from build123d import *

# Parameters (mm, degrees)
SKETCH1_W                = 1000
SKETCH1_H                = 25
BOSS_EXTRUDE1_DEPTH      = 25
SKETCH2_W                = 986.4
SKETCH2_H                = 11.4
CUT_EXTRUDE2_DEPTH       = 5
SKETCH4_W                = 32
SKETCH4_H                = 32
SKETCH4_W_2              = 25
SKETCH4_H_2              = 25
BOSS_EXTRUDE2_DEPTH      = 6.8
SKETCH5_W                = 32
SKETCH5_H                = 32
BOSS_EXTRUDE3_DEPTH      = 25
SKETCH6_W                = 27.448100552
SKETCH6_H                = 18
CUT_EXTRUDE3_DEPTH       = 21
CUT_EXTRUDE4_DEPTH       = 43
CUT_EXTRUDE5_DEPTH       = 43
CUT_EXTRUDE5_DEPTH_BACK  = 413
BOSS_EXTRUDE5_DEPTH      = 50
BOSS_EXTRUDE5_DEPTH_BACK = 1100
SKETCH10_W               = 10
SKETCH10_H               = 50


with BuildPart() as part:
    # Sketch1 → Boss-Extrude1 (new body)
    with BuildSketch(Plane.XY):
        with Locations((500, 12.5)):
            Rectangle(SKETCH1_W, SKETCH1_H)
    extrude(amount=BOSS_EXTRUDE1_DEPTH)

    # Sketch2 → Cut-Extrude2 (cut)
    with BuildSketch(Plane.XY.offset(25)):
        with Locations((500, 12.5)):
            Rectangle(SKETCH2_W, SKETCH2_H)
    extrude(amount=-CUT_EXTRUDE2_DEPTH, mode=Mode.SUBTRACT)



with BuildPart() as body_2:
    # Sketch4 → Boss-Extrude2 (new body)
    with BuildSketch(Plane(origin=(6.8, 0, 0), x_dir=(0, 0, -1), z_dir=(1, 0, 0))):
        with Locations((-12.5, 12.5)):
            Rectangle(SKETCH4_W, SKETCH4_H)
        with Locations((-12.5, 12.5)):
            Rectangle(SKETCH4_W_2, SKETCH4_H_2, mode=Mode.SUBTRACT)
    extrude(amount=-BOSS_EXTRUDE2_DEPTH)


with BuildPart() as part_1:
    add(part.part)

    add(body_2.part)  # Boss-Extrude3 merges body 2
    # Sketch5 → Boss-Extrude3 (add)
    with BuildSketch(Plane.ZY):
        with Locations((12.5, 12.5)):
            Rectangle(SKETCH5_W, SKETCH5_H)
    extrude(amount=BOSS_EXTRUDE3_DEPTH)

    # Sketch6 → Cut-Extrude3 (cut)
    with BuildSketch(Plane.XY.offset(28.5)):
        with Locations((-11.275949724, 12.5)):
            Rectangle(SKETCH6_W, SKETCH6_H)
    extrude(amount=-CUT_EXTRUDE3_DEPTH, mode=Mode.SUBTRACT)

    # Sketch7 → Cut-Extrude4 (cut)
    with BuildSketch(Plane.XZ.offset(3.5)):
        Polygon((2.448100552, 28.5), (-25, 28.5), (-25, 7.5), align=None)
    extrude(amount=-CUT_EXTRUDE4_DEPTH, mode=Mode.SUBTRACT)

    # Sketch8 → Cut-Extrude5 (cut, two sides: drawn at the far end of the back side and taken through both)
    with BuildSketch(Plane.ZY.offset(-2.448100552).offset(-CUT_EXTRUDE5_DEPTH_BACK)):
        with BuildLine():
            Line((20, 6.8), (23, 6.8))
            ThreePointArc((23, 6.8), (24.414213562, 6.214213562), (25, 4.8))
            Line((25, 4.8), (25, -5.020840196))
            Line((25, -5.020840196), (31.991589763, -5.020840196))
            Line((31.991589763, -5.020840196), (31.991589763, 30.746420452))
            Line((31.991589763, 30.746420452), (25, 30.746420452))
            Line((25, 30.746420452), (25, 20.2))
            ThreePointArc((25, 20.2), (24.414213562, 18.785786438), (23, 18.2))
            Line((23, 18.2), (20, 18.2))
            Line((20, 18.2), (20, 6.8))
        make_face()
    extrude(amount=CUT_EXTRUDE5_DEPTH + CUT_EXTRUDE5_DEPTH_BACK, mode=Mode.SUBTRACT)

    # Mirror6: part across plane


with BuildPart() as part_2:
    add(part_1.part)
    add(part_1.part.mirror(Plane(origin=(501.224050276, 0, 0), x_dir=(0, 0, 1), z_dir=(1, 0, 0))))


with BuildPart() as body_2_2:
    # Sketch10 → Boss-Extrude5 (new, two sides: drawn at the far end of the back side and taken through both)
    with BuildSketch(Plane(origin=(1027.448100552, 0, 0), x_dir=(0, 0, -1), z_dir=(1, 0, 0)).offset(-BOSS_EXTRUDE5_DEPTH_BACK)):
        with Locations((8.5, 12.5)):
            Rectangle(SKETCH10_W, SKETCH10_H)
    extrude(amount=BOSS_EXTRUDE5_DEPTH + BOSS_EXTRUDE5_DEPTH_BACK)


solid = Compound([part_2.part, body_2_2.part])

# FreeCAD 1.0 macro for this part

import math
import FreeCAD as App
import Part
import Sketcher
Q = App.Units.Quantity

doc = App.newDocument("Part")
body = doc.addObject("PartDesign::Body", "Body")

# Sketch on XY plane
sketch1 = body.newObject("Sketcher::SketchObject", "Sketch")
sketch1.AttachmentSupport = (doc.getObject("XY_Plane"), [""])
sketch1.MapMode = "FlatFace"
sketch1.addGeometry([
    Part.LineSegment(App.Vector(0, 25, 0), App.Vector(0, 0, 0)),
    Part.LineSegment(App.Vector(0, 0, 0), App.Vector(1000, 0, 0)),
    Part.LineSegment(App.Vector(1000, 0, 0), App.Vector(1000, 25, 0)),
    Part.LineSegment(App.Vector(1000, 25, 0), App.Vector(0, 25, 0)),
], False)
sketch1.addConstraint([
    Sketcher.Constraint("Coincident", 0, 2, 1, 1),
    Sketcher.Constraint("Coincident", 1, 2, 2, 1),
    Sketcher.Constraint("Coincident", 2, 2, 3, 1),
    Sketcher.Constraint("Coincident", 3, 2, 0, 1),
    Sketcher.Constraint("Vertical", 0),
    Sketcher.Constraint("Horizontal", 1),
    Sketcher.Constraint("Vertical", 2),
    Sketcher.Constraint("Horizontal", 3),
    Sketcher.Constraint("Coincident", 0, 2, -1, 1),
    Sketcher.Constraint("DistanceX", 1, 1, 1, 2, Q("1000 mm")),
    Sketcher.Constraint("DistanceY", 0, 2, 0, 1, Q("25 mm")),
])
pad1 = body.newObject("PartDesign::Pad", "Pad")
pad1.Profile = sketch1
pad1.Length = 25

# Sketch on XY plane
sketch2 = body.newObject("Sketcher::SketchObject", "Sketch001")
sketch2.AttachmentSupport = (doc.getObject("XY_Plane"), [""])
sketch2.MapMode = "FlatFace"
sketch2.AttachmentOffset = App.Placement(App.Vector(0, 0, 25), App.Rotation())
sketch2.addGeometry([
    Part.LineSegment(App.Vector(6.8, 18.2, 0), App.Vector(6.8, 6.8, 0)),
    Part.LineSegment(App.Vector(6.8, 6.8, 0), App.Vector(993.2, 6.8, 0)),
    Part.LineSegment(App.Vector(993.2, 6.8, 0), App.Vector(993.2, 18.2, 0)),
    Part.LineSegment(App.Vector(993.2, 18.2, 0), App.Vector(6.8, 18.2, 0)),
], False)
sketch2.addConstraint([
    Sketcher.Constraint("Coincident", 0, 2, 1, 1),
    Sketcher.Constraint("Coincident", 1, 2, 2, 1),
    Sketcher.Constraint("Coincident", 2, 2, 3, 1),
    Sketcher.Constraint("Coincident", 3, 2, 0, 1),
    Sketcher.Constraint("Vertical", 0),
    Sketcher.Constraint("Horizontal", 1),
    Sketcher.Constraint("Vertical", 2),
    Sketcher.Constraint("Horizontal", 3),
    Sketcher.Constraint("DistanceX", 1, 1, 1, 2, Q("986.4 mm")),
    Sketcher.Constraint("DistanceY", 0, 2, 0, 1, Q("11.4 mm")),
    Sketcher.Constraint("DistanceX", -1, 1, 0, 2, Q("6.8 mm")),
    Sketcher.Constraint("DistanceY", -1, 1, 0, 2, Q("6.8 mm")),
])
pocket1 = body.newObject("PartDesign::Pocket", "Pocket")
pocket1.Profile = sketch2
pocket1.Length = 5
body2 = doc.addObject("PartDesign::Body", "Body001")

# Sketch on YZ plane
sketch3 = body2.newObject("Sketcher::SketchObject", "Sketch002")
sketch3.AttachmentSupport = (doc.getObject("YZ_Plane001"), [""])
sketch3.MapMode = "FlatFace"
sketch3.AttachmentOffset = App.Placement(App.Vector(0, 0, 6.8), App.Rotation())
sketch3.addGeometry([
    Part.LineSegment(App.Vector(28.5, 28.5, 0), App.Vector(-3.5, 28.5, 0)),  # 0
    Part.LineSegment(App.Vector(-3.5, 28.5, 0), App.Vector(-3.5, -3.5, 0)),  # 1
    Part.LineSegment(App.Vector(-3.5, -3.5, 0), App.Vector(28.5, -3.5, 0)),  # 2
    Part.LineSegment(App.Vector(28.5, -3.5, 0), App.Vector(28.5, 28.5, 0)),  # 3
    Part.LineSegment(App.Vector(0, 0, 0), App.Vector(0, 25, 0)),  # 4
    Part.LineSegment(App.Vector(0, 25, 0), App.Vector(25, 25, 0)),  # 5
    Part.LineSegment(App.Vector(25, 25, 0), App.Vector(25, 0, 0)),  # 6
    Part.LineSegment(App.Vector(25, 0, 0), App.Vector(0, 0, 0)),  # 7
], False)
sketch3.addConstraint([
    Sketcher.Constraint("Coincident", 0, 2, 1, 1),
    Sketcher.Constraint("Coincident", 1, 2, 2, 1),
    Sketcher.Constraint("Coincident", 2, 2, 3, 1),
    Sketcher.Constraint("Coincident", 3, 2, 0, 1),
    Sketcher.Constraint("Coincident", 4, 2, 5, 1),
    Sketcher.Constraint("Coincident", 5, 2, 6, 1),
    Sketcher.Constraint("Coincident", 6, 2, 7, 1),
    Sketcher.Constraint("Coincident", 7, 2, 4, 1),
    Sketcher.Constraint("Horizontal", 0),
    Sketcher.Constraint("Vertical", 1),
    Sketcher.Constraint("Horizontal", 2),
    Sketcher.Constraint("Vertical", 3),
    Sketcher.Constraint("Vertical", 4),
    Sketcher.Constraint("Horizontal", 5),
    Sketcher.Constraint("Vertical", 6),
    Sketcher.Constraint("Horizontal", 7),
    Sketcher.Constraint("Coincident", 7, 2, -1, 1),
    Sketcher.Constraint("Equal", 2, 1),
    Sketcher.Constraint("Equal", 7, 4),
    Sketcher.Constraint("DistanceX", 0, 2, 0, 1, Q("32 mm")),
    Sketcher.Constraint("DistanceX", 5, 1, 5, 2, Q("25 mm")),
    Sketcher.Constraint("DistanceX", 0, 2, -1, 1, Q("3.5 mm")),
    Sketcher.Constraint("DistanceY", -1, 1, 0, 2, Q("28.5 mm")),
])
pad2 = body2.newObject("PartDesign::Pad", "Pad001")
pad2.Profile = sketch3
pad2.Length = 6.8
pad2.Reversed = True
doc.recompute()

boolean = body.newObject("PartDesign::Boolean", "Boolean")
boolean.Type = "Fuse"
boolean.addObjects([body2])

# Sketch on YZ plane
sketch4 = body.newObject("Sketcher::SketchObject", "Sketch003")
sketch4.AttachmentSupport = (doc.getObject("YZ_Plane"), [""])
sketch4.MapMode = "FlatFace"
sketch4.addGeometry([
    Part.LineSegment(App.Vector(28.5, -3.5, 0), App.Vector(-3.5, -3.5, 0)),
    Part.LineSegment(App.Vector(-3.5, -3.5, 0), App.Vector(-3.5, 28.5, 0)),
    Part.LineSegment(App.Vector(-3.5, 28.5, 0), App.Vector(28.5, 28.5, 0)),
    Part.LineSegment(App.Vector(28.5, 28.5, 0), App.Vector(28.5, -3.5, 0)),
], False)
sketch4.addConstraint([
    Sketcher.Constraint("Coincident", 0, 2, 1, 1),
    Sketcher.Constraint("Coincident", 1, 2, 2, 1),
    Sketcher.Constraint("Coincident", 2, 2, 3, 1),
    Sketcher.Constraint("Coincident", 3, 2, 0, 1),
    Sketcher.Constraint("Horizontal", 0),
    Sketcher.Constraint("Vertical", 1),
    Sketcher.Constraint("Horizontal", 2),
    Sketcher.Constraint("Vertical", 3),
    Sketcher.Constraint("Equal", 2, 1),
    Sketcher.Constraint("DistanceX", 0, 2, 0, 1, Q("32 mm")),
    Sketcher.Constraint("DistanceX", 0, 2, -1, 1, Q("3.5 mm")),
    Sketcher.Constraint("DistanceY", 0, 2, -1, 1, Q("3.5 mm")),
])
pad3 = body.newObject("PartDesign::Pad", "Pad002")
pad3.Profile = sketch4
pad3.Length = 25
pad3.Reversed = True

# Sketch on XY plane
sketch5 = body.newObject("Sketcher::SketchObject", "Sketch004")
sketch5.AttachmentSupport = (doc.getObject("XY_Plane"), [""])
sketch5.MapMode = "FlatFace"
sketch5.AttachmentOffset = App.Placement(App.Vector(0, 0, 28.5), App.Rotation())
sketch5.addGeometry([
    Part.LineSegment(App.Vector(-25, 21.5, 0), App.Vector(-25, 3.5, 0)),
    Part.LineSegment(App.Vector(-25, 3.5, 0), App.Vector(2.448101, 3.5, 0)),
    Part.LineSegment(App.Vector(2.448101, 3.5, 0), App.Vector(2.448101, 21.5, 0)),
    Part.LineSegment(App.Vector(2.448101, 21.5, 0), App.Vector(-25, 21.5, 0)),
], False)
sketch5.addConstraint([
    Sketcher.Constraint("Coincident", 0, 2, 1, 1),
    Sketcher.Constraint("Coincident", 1, 2, 2, 1),
    Sketcher.Constraint("Coincident", 2, 2, 3, 1),
    Sketcher.Constraint("Coincident", 3, 2, 0, 1),
    Sketcher.Constraint("Vertical", 0),
    Sketcher.Constraint("Horizontal", 1),
    Sketcher.Constraint("Vertical", 2),
    Sketcher.Constraint("Horizontal", 3),
    Sketcher.Constraint("DistanceY", 0, 2, 0, 1, Q("18 mm")),
    Sketcher.Constraint("DistanceX", 0, 2, -1, 1, Q("25 mm")),
    Sketcher.Constraint("DistanceY", -1, 1, 0, 2, Q("3.5 mm")),
    Sketcher.Constraint("DistanceX", 1, 1, 1, 2, Q("27.448101 mm")),
])
pocket2 = body.newObject("PartDesign::Pocket", "Pocket001")
pocket2.Profile = sketch5
pocket2.Length = 21

# Sketch on XZ plane
sketch6 = body.newObject("Sketcher::SketchObject", "Sketch005")
sketch6.AttachmentSupport = (doc.getObject("XZ_Plane"), [""])
sketch6.MapMode = "FlatFace"
sketch6.AttachmentOffset = App.Placement(App.Vector(0, 0, 3.5), App.Rotation())
sketch6.addGeometry([
    Part.LineSegment(App.Vector(2.448101, 28.5, 0), App.Vector(-25, 28.5, 0)),
    Part.LineSegment(App.Vector(-25, 28.5, 0), App.Vector(-25, 7.5, 0)),
    Part.LineSegment(App.Vector(-25, 7.5, 0), App.Vector(2.448101, 28.5, 0)),
], False)
sketch6.addConstraint([
    Sketcher.Constraint("Coincident", 0, 2, 1, 1),
    Sketcher.Constraint("Coincident", 1, 2, 2, 1),
    Sketcher.Constraint("Coincident", 2, 2, 0, 1),
    Sketcher.Constraint("Horizontal", 0),
    Sketcher.Constraint("Vertical", 1),
    Sketcher.Constraint("DistanceY", 1, 2, 1, 1, Q("21 mm")),
    Sketcher.Constraint("DistanceX", 0, 2, -1, 1, Q("25 mm")),
    Sketcher.Constraint("DistanceY", -1, 1, 0, 2, Q("28.5 mm")),
    Sketcher.Constraint("DistanceX", 0, 2, 0, 1, Q("27.448101 mm")),
])
pocket3 = body.newObject("PartDesign::Pocket", "Pocket002")
pocket3.Profile = sketch6
pocket3.Length = 43

# Sketch on YZ plane
sketch7 = body.newObject("Sketcher::SketchObject", "Sketch006")
sketch7.AttachmentSupport = (doc.getObject("YZ_Plane"), [""])
sketch7.MapMode = "FlatFace"
sketch7.AttachmentOffset = App.Placement(App.Vector(0, 0, 2.448101), App.Rotation())
sketch7.addGeometry([
    Part.LineSegment(App.Vector(6.8, 20, 0), App.Vector(6.8, 23, 0)),  # 0
    Part.ArcOfCircle(Part.Circle(App.Vector(4.8, 23, 0), App.Vector(0, 0, 1), 2), math.radians(0), math.radians(90)),  # 1
    Part.LineSegment(App.Vector(4.8, 25, 0), App.Vector(-5.02084, 25, 0)),  # 2
    Part.LineSegment(App.Vector(-5.02084, 25, 0), App.Vector(-5.02084, 31.99159, 0)),  # 3
    Part.LineSegment(App.Vector(-5.02084, 31.99159, 0), App.Vector(30.74642, 31.99159, 0)),  # 4
    Part.LineSegment(App.Vector(30.74642, 31.99159, 0), App.Vector(30.74642, 25, 0)),  # 5
    Part.LineSegment(App.Vector(30.74642, 25, 0), App.Vector(20.2, 25, 0)),  # 6
    Part.ArcOfCircle(Part.Circle(App.Vector(20.2, 23, 0), App.Vector(0, 0, 1), 2), math.radians(90), math.radians(180)),  # 7
    Part.LineSegment(App.Vector(18.2, 23, 0), App.Vector(18.2, 20, 0)),  # 8
    Part.LineSegment(App.Vector(18.2, 20, 0), App.Vector(6.8, 20, 0)),  # 9
], False)
sketch7.addConstraint([
    Sketcher.Constraint("Tangent", 0, 2, 1, 1),
    Sketcher.Constraint("Tangent", 1, 2, 2, 1),
    Sketcher.Constraint("Coincident", 2, 2, 3, 1),
    Sketcher.Constraint("Coincident", 3, 2, 4, 1),
    Sketcher.Constraint("Coincident", 4, 2, 5, 1),
    Sketcher.Constraint("Coincident", 5, 2, 6, 1),
    Sketcher.Constraint("Tangent", 6, 2, 7, 1),
    Sketcher.Constraint("Tangent", 7, 2, 8, 1),
    Sketcher.Constraint("Coincident", 8, 2, 9, 1),
    Sketcher.Constraint("Coincident", 9, 2, 0, 1),
    Sketcher.Constraint("Vertical", 0),
    Sketcher.Constraint("Horizontal", 2),
    Sketcher.Constraint("Vertical", 3),
    Sketcher.Constraint("Horizontal", 4),
    Sketcher.Constraint("Vertical", 5),
    Sketcher.Constraint("Horizontal", 6),
    Sketcher.Constraint("Vertical", 8),
    Sketcher.Constraint("Horizontal", 9),
    Sketcher.Constraint("Equal", 1, 7),
    Sketcher.Constraint("Horizontal", 1, 3, 7, 3),
    Sketcher.Constraint("Radius", 1, Q("2 mm")),
    Sketcher.Constraint("DistanceY", 0, 1, 0, 2, Q("3 mm")),
    Sketcher.Constraint("DistanceX", 9, 2, 9, 1, Q("11.4 mm")),
    Sketcher.Constraint("DistanceY", -1, 1, 1, 3, Q("23 mm")),
    Sketcher.Constraint("DistanceX", -1, 1, 1, 3, Q("4.8 mm")),
    Sketcher.Constraint("DistanceX", 2, 2, 2, 1, Q("9.82084 mm")),
    Sketcher.Constraint("DistanceX", 4, 1, 4, 2, Q("35.767261 mm")),
    Sketcher.Constraint("DistanceY", 3, 1, 3, 2, Q("6.99159 mm")),
])
pocket4 = body.newObject("PartDesign::Pocket", "Pocket003")
pocket4.Profile = sketch7
pocket4.Type = "TwoLengths"
pocket4.Length = 43
pocket4.Length2 = 413
body3 = doc.addObject("PartDesign::Body", "Body002")
doc.recompute()

body3.BaseFeature = body
doc.recompute()

mirroring = doc.addObject("Part::Mirroring", "Mirroring")
mirroring.Source = body
mirroring.Base = App.Vector(501.22405, 0, 0)
mirroring.Normal = App.Vector(1, 0, 0)
body4 = doc.addObject("PartDesign::Body", "Body003")
body4.BaseFeature = mirroring
boolean2 = body3.newObject("PartDesign::Boolean", "Boolean001")
boolean2.Type = "Fuse"
boolean2.addObjects([body4])
doc.recompute()
body5 = doc.addObject("PartDesign::Body", "Body004")

# Sketch on YZ plane
sketch8 = body5.newObject("Sketcher::SketchObject", "Sketch007")
sketch8.AttachmentSupport = (doc.getObject("YZ_Plane004"), [""])
sketch8.MapMode = "FlatFace"
sketch8.AttachmentOffset = App.Placement(App.Vector(0, 0, 1027.448101), App.Rotation())
sketch8.addGeometry([
    Part.LineSegment(App.Vector(37.5, -3.5, 0), App.Vector(-12.5, -3.5, 0)),
    Part.LineSegment(App.Vector(-12.5, -3.5, 0), App.Vector(-12.5, -13.5, 0)),
    Part.LineSegment(App.Vector(-12.5, -13.5, 0), App.Vector(37.5, -13.5, 0)),
    Part.LineSegment(App.Vector(37.5, -13.5, 0), App.Vector(37.5, -3.5, 0)),
], False)
sketch8.addConstraint([
    Sketcher.Constraint("Coincident", 0, 2, 1, 1),
    Sketcher.Constraint("Coincident", 1, 2, 2, 1),
    Sketcher.Constraint("Coincident", 2, 2, 3, 1),
    Sketcher.Constraint("Coincident", 3, 2, 0, 1),
    Sketcher.Constraint("Horizontal", 0),
    Sketcher.Constraint("Vertical", 1),
    Sketcher.Constraint("Horizontal", 2),
    Sketcher.Constraint("Vertical", 3),
    Sketcher.Constraint("DistanceX", 0, 2, 0, 1, Q("50 mm")),
    Sketcher.Constraint("DistanceY", 1, 2, 1, 1, Q("10 mm")),
    Sketcher.Constraint("DistanceX", 0, 2, -1, 1, Q("12.5 mm")),
    Sketcher.Constraint("DistanceY", 0, 2, -1, 1, Q("3.5 mm")),
])
pad4 = body5.newObject("PartDesign::Pad", "Pad003")
pad4.Profile = sketch8
pad4.Type = "TwoLengths"
pad4.Length = 50
pad4.Length2 = 1100
mirroring.Visibility = False

doc.recompute()
